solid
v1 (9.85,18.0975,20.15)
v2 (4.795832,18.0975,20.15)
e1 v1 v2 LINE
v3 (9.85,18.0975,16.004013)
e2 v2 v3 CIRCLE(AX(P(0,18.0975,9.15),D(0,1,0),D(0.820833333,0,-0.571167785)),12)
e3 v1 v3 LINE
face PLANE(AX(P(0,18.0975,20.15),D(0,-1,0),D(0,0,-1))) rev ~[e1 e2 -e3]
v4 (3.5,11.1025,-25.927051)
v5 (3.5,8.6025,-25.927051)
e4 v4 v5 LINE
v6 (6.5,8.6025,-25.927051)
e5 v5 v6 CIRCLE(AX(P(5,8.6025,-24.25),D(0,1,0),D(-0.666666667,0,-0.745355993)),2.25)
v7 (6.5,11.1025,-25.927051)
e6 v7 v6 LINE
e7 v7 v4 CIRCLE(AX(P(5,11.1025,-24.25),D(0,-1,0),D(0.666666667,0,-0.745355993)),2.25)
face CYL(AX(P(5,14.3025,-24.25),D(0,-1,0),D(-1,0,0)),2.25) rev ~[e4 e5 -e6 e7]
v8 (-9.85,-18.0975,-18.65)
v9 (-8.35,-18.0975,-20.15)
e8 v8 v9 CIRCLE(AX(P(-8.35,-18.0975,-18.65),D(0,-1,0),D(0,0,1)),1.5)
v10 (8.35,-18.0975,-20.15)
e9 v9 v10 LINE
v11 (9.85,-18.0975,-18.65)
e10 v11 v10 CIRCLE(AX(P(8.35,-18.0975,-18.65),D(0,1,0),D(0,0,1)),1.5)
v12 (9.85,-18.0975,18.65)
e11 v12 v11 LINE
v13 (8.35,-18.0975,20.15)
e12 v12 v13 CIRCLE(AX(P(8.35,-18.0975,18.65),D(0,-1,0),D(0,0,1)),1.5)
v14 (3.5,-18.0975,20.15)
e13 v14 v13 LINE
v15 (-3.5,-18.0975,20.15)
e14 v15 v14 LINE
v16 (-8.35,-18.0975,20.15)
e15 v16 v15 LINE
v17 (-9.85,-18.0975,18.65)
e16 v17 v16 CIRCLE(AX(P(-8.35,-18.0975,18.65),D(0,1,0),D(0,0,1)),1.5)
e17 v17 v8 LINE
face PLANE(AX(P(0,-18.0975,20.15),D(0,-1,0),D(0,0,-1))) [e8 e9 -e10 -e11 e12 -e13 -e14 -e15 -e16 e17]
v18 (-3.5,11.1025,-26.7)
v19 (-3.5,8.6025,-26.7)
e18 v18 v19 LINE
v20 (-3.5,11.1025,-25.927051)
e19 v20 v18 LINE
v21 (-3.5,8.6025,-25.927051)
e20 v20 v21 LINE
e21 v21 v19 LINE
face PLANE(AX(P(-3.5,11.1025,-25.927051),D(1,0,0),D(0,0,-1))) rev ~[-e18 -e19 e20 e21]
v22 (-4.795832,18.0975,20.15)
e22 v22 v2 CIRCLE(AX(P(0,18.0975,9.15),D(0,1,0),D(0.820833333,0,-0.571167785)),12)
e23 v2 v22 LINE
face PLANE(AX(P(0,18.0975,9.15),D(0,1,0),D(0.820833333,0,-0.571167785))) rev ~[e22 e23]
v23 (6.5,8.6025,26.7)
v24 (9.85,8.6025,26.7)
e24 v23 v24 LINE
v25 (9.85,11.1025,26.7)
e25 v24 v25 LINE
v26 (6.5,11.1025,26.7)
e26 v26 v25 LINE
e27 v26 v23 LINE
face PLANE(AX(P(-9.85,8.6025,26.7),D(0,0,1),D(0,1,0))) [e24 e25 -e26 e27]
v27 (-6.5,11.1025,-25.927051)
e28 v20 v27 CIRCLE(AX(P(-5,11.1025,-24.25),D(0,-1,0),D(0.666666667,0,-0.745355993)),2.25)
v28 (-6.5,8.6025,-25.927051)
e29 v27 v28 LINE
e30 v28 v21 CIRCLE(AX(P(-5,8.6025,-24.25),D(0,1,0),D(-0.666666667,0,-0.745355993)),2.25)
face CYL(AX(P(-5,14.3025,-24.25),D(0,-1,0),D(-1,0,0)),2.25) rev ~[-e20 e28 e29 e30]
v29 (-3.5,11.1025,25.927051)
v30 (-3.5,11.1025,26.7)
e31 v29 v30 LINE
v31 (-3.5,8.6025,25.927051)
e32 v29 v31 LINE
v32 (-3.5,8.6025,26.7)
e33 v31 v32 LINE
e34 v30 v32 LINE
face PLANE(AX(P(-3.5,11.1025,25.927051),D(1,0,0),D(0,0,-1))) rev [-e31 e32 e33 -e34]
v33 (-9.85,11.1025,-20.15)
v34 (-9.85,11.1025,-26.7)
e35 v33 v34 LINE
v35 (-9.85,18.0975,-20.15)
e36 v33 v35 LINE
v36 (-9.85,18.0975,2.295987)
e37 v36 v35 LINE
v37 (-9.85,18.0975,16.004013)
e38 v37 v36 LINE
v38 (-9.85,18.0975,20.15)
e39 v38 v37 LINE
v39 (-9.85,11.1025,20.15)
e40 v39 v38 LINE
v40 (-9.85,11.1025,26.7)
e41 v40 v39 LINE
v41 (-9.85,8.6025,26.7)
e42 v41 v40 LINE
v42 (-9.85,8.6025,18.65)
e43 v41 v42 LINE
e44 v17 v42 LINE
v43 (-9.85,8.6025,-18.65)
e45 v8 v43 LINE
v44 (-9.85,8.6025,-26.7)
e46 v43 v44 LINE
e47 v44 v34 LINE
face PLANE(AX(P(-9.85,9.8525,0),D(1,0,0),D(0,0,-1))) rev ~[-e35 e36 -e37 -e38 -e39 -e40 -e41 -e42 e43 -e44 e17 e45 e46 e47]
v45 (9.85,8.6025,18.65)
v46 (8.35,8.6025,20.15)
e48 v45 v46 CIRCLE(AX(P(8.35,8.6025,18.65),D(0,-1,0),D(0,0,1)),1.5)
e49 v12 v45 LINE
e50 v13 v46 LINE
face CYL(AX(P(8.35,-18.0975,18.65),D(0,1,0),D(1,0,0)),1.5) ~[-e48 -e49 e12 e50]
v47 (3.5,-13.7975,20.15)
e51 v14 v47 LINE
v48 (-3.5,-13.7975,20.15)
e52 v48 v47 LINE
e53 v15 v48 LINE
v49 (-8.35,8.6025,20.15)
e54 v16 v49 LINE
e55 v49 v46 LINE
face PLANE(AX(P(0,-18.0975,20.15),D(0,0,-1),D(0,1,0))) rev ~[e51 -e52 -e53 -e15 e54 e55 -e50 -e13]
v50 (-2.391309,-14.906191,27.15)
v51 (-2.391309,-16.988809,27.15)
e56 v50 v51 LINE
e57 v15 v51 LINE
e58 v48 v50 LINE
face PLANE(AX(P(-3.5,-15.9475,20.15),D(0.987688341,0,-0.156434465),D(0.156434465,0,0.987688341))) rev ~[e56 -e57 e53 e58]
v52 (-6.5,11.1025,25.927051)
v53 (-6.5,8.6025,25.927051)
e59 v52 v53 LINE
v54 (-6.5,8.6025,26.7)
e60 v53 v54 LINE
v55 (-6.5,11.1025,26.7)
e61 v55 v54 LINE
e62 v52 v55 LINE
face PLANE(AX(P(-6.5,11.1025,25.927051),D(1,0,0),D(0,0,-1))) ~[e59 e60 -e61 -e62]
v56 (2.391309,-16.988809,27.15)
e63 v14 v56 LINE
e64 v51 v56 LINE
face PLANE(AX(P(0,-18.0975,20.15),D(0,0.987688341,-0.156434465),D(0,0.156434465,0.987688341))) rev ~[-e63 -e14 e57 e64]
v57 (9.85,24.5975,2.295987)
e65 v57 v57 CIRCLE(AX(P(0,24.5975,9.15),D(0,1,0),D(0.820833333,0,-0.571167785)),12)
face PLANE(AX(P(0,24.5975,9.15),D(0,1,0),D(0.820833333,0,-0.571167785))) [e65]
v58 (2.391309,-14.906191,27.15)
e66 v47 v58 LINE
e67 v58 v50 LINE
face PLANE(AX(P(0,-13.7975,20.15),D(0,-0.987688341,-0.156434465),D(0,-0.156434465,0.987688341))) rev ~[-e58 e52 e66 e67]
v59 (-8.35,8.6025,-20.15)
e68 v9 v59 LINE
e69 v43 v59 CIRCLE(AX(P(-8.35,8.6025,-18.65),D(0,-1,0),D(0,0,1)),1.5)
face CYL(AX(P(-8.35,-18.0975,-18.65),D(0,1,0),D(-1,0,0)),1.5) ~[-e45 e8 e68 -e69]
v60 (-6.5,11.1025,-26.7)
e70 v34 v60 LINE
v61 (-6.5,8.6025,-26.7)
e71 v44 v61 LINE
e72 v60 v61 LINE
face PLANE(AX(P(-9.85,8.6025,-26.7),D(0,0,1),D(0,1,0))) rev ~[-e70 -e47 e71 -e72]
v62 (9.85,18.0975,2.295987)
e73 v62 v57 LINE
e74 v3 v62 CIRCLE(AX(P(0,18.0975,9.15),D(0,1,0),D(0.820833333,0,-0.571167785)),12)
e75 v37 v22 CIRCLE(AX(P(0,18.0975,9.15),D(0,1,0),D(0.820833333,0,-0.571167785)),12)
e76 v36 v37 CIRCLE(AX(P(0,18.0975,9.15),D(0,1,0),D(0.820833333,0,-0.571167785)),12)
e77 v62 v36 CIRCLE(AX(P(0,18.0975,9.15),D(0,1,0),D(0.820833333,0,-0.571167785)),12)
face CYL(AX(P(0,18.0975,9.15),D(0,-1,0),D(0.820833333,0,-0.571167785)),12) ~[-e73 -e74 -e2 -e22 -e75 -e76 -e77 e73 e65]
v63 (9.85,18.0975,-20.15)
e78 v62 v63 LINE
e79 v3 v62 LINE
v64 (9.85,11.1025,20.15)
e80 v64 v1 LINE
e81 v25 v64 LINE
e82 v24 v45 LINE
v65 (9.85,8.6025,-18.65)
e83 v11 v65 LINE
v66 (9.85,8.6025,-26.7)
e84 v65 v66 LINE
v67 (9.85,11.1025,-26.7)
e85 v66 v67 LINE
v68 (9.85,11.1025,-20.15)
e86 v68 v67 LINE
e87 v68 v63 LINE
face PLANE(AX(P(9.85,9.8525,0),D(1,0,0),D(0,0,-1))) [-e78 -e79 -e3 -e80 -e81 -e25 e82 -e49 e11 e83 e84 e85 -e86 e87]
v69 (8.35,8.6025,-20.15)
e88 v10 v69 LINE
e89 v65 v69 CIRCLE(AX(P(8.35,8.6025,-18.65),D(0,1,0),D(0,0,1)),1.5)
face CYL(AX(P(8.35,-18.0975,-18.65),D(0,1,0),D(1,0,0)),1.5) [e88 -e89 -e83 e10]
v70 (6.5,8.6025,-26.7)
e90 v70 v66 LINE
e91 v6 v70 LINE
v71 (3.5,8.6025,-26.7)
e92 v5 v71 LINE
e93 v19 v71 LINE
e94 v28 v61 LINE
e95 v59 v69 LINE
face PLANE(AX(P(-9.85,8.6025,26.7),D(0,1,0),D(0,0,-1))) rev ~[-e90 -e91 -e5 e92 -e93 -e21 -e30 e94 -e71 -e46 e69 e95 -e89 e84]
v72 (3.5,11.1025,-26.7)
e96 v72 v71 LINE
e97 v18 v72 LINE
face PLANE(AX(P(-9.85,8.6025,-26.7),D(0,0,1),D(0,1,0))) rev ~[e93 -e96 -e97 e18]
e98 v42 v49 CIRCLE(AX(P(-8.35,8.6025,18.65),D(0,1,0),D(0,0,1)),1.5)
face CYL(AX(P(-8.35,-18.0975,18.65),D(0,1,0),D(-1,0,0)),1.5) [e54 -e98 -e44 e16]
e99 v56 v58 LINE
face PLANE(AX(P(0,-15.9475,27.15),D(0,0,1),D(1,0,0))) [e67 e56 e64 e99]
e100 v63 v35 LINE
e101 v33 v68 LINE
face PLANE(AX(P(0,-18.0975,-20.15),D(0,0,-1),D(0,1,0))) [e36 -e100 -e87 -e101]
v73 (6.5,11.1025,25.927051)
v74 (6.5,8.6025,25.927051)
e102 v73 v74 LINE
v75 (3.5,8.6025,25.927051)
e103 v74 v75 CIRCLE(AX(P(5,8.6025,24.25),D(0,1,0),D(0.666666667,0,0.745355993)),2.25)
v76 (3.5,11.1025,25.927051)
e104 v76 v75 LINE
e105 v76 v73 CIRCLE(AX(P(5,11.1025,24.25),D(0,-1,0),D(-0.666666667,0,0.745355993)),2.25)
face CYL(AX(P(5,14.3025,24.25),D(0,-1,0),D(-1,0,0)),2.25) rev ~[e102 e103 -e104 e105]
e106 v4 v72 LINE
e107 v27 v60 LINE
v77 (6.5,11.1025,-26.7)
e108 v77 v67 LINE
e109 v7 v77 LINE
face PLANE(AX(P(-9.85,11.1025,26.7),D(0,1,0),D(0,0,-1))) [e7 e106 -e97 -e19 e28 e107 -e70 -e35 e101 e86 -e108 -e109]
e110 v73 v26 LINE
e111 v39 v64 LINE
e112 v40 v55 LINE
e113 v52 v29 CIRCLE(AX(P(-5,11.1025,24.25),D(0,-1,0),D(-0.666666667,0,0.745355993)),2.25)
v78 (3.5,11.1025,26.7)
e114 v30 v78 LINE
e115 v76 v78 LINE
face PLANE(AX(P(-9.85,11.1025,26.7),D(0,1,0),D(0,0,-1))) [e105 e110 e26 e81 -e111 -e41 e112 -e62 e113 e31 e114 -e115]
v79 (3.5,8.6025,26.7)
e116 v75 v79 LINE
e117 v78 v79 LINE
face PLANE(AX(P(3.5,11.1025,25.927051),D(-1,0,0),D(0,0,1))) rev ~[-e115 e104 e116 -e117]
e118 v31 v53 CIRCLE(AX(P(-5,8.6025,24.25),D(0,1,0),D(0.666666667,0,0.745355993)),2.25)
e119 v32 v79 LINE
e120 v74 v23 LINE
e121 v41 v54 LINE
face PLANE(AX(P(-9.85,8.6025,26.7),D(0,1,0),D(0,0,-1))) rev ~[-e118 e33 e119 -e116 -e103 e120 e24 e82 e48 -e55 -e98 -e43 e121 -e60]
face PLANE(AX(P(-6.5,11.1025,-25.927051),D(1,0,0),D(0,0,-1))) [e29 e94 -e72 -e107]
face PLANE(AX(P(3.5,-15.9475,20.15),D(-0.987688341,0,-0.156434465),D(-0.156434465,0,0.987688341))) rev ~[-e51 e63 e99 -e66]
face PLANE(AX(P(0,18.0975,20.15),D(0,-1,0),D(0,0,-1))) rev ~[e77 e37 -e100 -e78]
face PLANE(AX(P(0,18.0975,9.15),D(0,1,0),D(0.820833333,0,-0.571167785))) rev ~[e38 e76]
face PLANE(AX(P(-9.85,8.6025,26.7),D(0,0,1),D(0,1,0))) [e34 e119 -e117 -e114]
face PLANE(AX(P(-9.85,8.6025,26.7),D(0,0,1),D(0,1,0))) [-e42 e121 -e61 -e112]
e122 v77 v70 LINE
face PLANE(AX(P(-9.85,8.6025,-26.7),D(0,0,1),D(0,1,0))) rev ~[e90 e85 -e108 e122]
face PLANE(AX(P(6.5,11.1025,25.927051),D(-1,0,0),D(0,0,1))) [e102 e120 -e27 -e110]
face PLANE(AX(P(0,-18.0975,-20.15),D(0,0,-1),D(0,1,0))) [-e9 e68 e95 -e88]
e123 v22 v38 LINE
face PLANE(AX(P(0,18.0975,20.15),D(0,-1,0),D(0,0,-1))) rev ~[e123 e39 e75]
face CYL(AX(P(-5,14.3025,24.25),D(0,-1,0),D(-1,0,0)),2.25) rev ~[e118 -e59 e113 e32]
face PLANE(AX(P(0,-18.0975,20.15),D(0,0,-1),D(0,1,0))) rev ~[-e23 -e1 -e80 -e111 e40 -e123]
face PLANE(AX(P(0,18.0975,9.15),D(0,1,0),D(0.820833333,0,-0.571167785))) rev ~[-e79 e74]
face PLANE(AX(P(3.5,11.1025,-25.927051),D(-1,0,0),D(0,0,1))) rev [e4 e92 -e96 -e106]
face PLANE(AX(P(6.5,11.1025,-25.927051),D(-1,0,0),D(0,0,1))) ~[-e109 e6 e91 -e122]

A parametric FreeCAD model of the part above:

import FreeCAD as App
import Part
import Sketcher
from FreeCAD import Vector


def edges_at(feature, points):
    """Names of the edges that pass closest to the given points."""
    edges = feature.Shape.Edges
    near = lambda p: min(range(len(edges)), key=lambda i: edges[i].distToShape(Part.Vertex(*p))[0])
    return sorted({f"Edge{near(p) + 1}" for p in points})

doc = App.newDocument("Part")
body = doc.addObject("PartDesign::Body", "Body")

# Sketch on YZ plane
sketch1 = doc.addObject("Sketcher::SketchObject", "Sketch")
body.addObject(sketch1)
sketch1.AttachmentSupport = (doc.YZ_Plane, [""])
sketch1.MapMode = "FlatFace"
sketch1.addGeometry(Part.LineSegment(Vector(18, 20, 0), Vector(-18, 20, 0)), False)
sketch1.addGeometry(Part.LineSegment(Vector(-18, 20, 0), Vector(-18, -20, 0)), False)
sketch1.addGeometry(Part.LineSegment(Vector(-18, -20, 0), Vector(18, -20, 0)), False)
sketch1.addGeometry(Part.LineSegment(Vector(18, -20, 0), Vector(18, 20, 0)), False)
sketch1.addConstraint(Sketcher.Constraint("Coincident", 0, 2, 1, 1))
sketch1.addConstraint(Sketcher.Constraint("Coincident", 1, 2, 2, 1))
sketch1.addConstraint(Sketcher.Constraint("Coincident", 2, 2, 3, 1))
sketch1.addConstraint(Sketcher.Constraint("Coincident", 3, 2, 0, 1))
sketch1.addConstraint(Sketcher.Constraint("Horizontal", 0))
sketch1.addConstraint(Sketcher.Constraint("Vertical", 1))
sketch1.addConstraint(Sketcher.Constraint("Horizontal", 2))
sketch1.addConstraint(Sketcher.Constraint("Vertical", 3))
sketch1.addConstraint(Sketcher.Constraint("Symmetric", 0, 2, 2, 2, -1, 1))
sketch1.addConstraint(Sketcher.Constraint("DistanceY", 1, 2, 1, 1, 40.3))
sketch1.addConstraint(Sketcher.Constraint("DistanceX", 0, 2, 0, 1, 36.195))
pad1 = doc.addObject("PartDesign::Pad", "Pad")
body.addObject(pad1)
pad1.Profile = sketch1
pad1.Length = 19.7
pad1.Midplane = True

# Sketch on YZ plane
sketch2 = doc.addObject("Sketcher::SketchObject", "Sketch001")
body.addObject(sketch2)
sketch2.AttachmentSupport = (doc.YZ_Plane, [""])
sketch2.MapMode = "FlatFace"
sketch2.AttachmentOffset = App.Placement(Vector(0, 0, -9.85), App.Rotation())
sketch2.addGeometry(Part.LineSegment(Vector(11.1, 26.7, 0), Vector(8.6, 26.7, 0)), False)
sketch2.addGeometry(Part.LineSegment(Vector(8.6, 26.7, 0), Vector(8.6, -26.7, 0)), False)
sketch2.addGeometry(Part.LineSegment(Vector(8.6, -26.7, 0), Vector(11.1, -26.7, 0)), False)
sketch2.addGeometry(Part.LineSegment(Vector(11.1, -26.7, 0), Vector(11.1, 26.7, 0)), False)
sketch2.addConstraint(Sketcher.Constraint("Coincident", 0, 2, 1, 1))
sketch2.addConstraint(Sketcher.Constraint("Coincident", 1, 2, 2, 1))
sketch2.addConstraint(Sketcher.Constraint("Coincident", 2, 2, 3, 1))
sketch2.addConstraint(Sketcher.Constraint("Coincident", 3, 2, 0, 1))
sketch2.addConstraint(Sketcher.Constraint("Horizontal", 0))
sketch2.addConstraint(Sketcher.Constraint("Vertical", 1))
sketch2.addConstraint(Sketcher.Constraint("Horizontal", 2))
sketch2.addConstraint(Sketcher.Constraint("Vertical", 3))
sketch2.addConstraint(Sketcher.Constraint("DistanceX", 0, 2, 0, 1, 2.5))
sketch2.addConstraint(Sketcher.Constraint("DistanceY", 1, 2, 1, 1, 53.4))
sketch2.addConstraint(Sketcher.Constraint("DistanceY", -1, 1, 0, 2, 26.7))
sketch2.addConstraint(Sketcher.Constraint("DistanceX", -1, 1, 0, 2, 8.6025))
pad2 = doc.addObject("PartDesign::Pad", "Pad001")
body.addObject(pad2)
pad2.Profile = sketch2
pad2.Length = 19.7

# Sketch on XZ plane
sketch3 = doc.addObject("Sketcher::SketchObject", "Sketch002")
body.addObject(sketch3)
sketch3.AttachmentSupport = (doc.XZ_Plane, [""])
sketch3.MapMode = "FlatFace"
sketch3.AttachmentOffset = App.Placement(Vector(0, 0, -18.0975), App.Rotation())
sketch3.addGeometry(Part.Circle(Vector(0, 9, 0), Vector(0, 0, 1), 12), False)
sketch3.addConstraint(Sketcher.Constraint("PointOnObject", 0, 3, -2))
sketch3.addConstraint(Sketcher.Constraint("Diameter", 0, 24.0))
sketch3.addConstraint(Sketcher.Constraint("DistanceY", -1, 1, 0, 3, 9.15))
pad3 = doc.addObject("PartDesign::Pad", "Pad002")
body.addObject(pad3)
pad3.Profile = sketch3
pad3.Length = 6.5
pad3.Reversed = True

# Sketch on XY plane
sketch4 = doc.addObject("Sketcher::SketchObject", "Sketch003")
body.addObject(sketch4)
sketch4.AttachmentSupport = (doc.XY_Plane, [""])
sketch4.MapMode = "FlatFace"
sketch4.AttachmentOffset = App.Placement(Vector(0, 0, 20.15), App.Rotation())
sketch4.addGeometry(Part.LineSegment(Vector(-3.5, -13.8, 0), Vector(-3.5, -18.1, 0)), False)
sketch4.addGeometry(Part.LineSegment(Vector(-3.5, -18.1, 0), Vector(3.5, -18.1, 0)), False)
sketch4.addGeometry(Part.LineSegment(Vector(3.5, -18.1, 0), Vector(3.5, -13.8, 0)), False)
sketch4.addGeometry(Part.LineSegment(Vector(3.5, -13.8, 0), Vector(-3.5, -13.8, 0)), False)
sketch4.addConstraint(Sketcher.Constraint("Coincident", 0, 2, 1, 1))
sketch4.addConstraint(Sketcher.Constraint("Coincident", 1, 2, 2, 1))
sketch4.addConstraint(Sketcher.Constraint("Coincident", 2, 2, 3, 1))
sketch4.addConstraint(Sketcher.Constraint("Coincident", 3, 2, 0, 1))
sketch4.addConstraint(Sketcher.Constraint("Vertical", 0))
sketch4.addConstraint(Sketcher.Constraint("Horizontal", 1))
sketch4.addConstraint(Sketcher.Constraint("Vertical", 2))
sketch4.addConstraint(Sketcher.Constraint("Horizontal", 3))
sketch4.addConstraint(Sketcher.Constraint("DistanceX", 1, 1, 1, 2, 7.0))
sketch4.addConstraint(Sketcher.Constraint("DistanceY", 0, 2, 0, 1, 4.3))
sketch4.addConstraint(Sketcher.Constraint("DistanceX", 0, 2, -1, 1, 3.5))
sketch4.addConstraint(Sketcher.Constraint("DistanceY", 0, 2, -1, 1, 18.0975))
pad4 = doc.addObject("PartDesign::Pad", "Pad003")
body.addObject(pad4)
pad4.Profile = sketch4
pad4.Length = 7
pad4.TaperAngle = -9

# Sketch on XZ plane
sketch5 = doc.addObject("Sketcher::SketchObject", "Sketch004")
body.addObject(sketch5)
sketch5.AttachmentSupport = (doc.XZ_Plane, [""])
sketch5.MapMode = "FlatFace"
sketch5.AttachmentOffset = App.Placement(Vector(0, 0, -11.1025), App.Rotation())
sketch5.addGeometry(Part.Circle(Vector(5, -24.2, 0), Vector(0, 0, 1), 2.2), False)
sketch5.addGeometry(Part.Circle(Vector(-5, -24.2, 0), Vector(0, 0, 1), 2.2), False)
sketch5.addGeometry(Part.Circle(Vector(5, 24.2, 0), Vector(0, 0, 1), 2.2), False)
sketch5.addGeometry(Part.Circle(Vector(-5, 24.2, 0), Vector(0, 0, 1), 2.2), False)
sketch5.addConstraint(Sketcher.Constraint("Equal", 0, 1))
sketch5.addConstraint(Sketcher.Constraint("Equal", 1, 2))
sketch5.addConstraint(Sketcher.Constraint("Equal", 2, 3))
sketch5.addConstraint(Sketcher.Constraint("Symmetric", 1, 3, 2, 3, -1, 1))
sketch5.addConstraint(Sketcher.Constraint("Symmetric", 0, 3, 3, 3, -1, 1))
sketch5.addConstraint(Sketcher.Constraint("Symmetric", 0, 3, 1, 3, -2))
sketch5.addConstraint(Sketcher.Constraint("Diameter", 0, 4.5))
sketch5.addConstraint(Sketcher.Constraint("DistanceX", -1, 1, 0, 3, 5.0))
sketch5.addConstraint(Sketcher.Constraint("DistanceY", 0, 3, 2, 3, 48.5))
doc.recompute()
hole = doc.addObject("PartDesign::Hole", "Hole")
body.addObject(hole)
hole.Profile = sketch5
hole.ThreadType = "None"
hole.Diameter = 4.5
hole.DepthType = "Dimension"
hole.Depth = 3.2
hole.DrillPoint = "Angled"
hole.DrillPointAngle = 118
hole.Reversed = True

# Sketch on XZ plane
sketch6 = doc.addObject("Sketcher::SketchObject", "Sketch005")
body.addObject(sketch6)
sketch6.AttachmentSupport = (doc.XZ_Plane, [""])
sketch6.MapMode = "FlatFace"
sketch6.AttachmentOffset = App.Placement(Vector(0, 0, -11.1025), App.Rotation())
sketch6.addGeometry(Part.LineSegment(Vector(-6.5, -26.7, 0), Vector(-6.5, -25.9, 0)), False)
sketch6.addGeometry(Part.LineSegment(Vector(-6.5, -25.9, 0), Vector(-3.5, -25.9, 0)), False)
sketch6.addGeometry(Part.LineSegment(Vector(-3.5, -25.9, 0), Vector(-3.5, -26.7, 0)), False)
sketch6.addGeometry(Part.LineSegment(Vector(-3.5, -26.7, 0), Vector(-6.5, -26.7, 0)), False)
sketch6.addConstraint(Sketcher.Constraint("Coincident", 0, 2, 1, 1))
sketch6.addConstraint(Sketcher.Constraint("Coincident", 1, 2, 2, 1))
sketch6.addConstraint(Sketcher.Constraint("Coincident", 2, 2, 3, 1))
sketch6.addConstraint(Sketcher.Constraint("Coincident", 3, 2, 0, 1))
sketch6.addConstraint(Sketcher.Constraint("Vertical", 0))
sketch6.addConstraint(Sketcher.Constraint("Horizontal", 1))
sketch6.addConstraint(Sketcher.Constraint("Vertical", 2))
sketch6.addConstraint(Sketcher.Constraint("Horizontal", 3))
sketch6.addConstraint(Sketcher.Constraint("DistanceX", 1, 1, 1, 2, 3.0))
sketch6.addConstraint(Sketcher.Constraint("DistanceX", 0, 2, -1, 1, 6.5))
sketch6.addConstraint(Sketcher.Constraint("DistanceY", 2, 2, -1, 1, 26.7))
sketch6.addConstraint(Sketcher.Constraint("DistanceY", 0, 1, 0, 2, 0.772949))
pocket1 = doc.addObject("PartDesign::Pocket", "Pocket")
body.addObject(pocket1)
pocket1.Profile = sketch6
pocket1.Type = "ThroughAll"
pocket1.Reversed = True
doc.recompute()

mirrored = doc.addObject("PartDesign::Mirrored", "Mirrored")
body.addObject(mirrored)
mirrored.Originals = [pocket1]
mirrored.MirrorPlane = (doc.YZ_Plane, [""])
body.Tip = mirrored
doc.recompute()

mirrored2 = doc.addObject("PartDesign::Mirrored", "Mirrored001")
body.addObject(mirrored2)
mirrored2.Originals = [pocket1]
mirrored2.MirrorPlane = (doc.XY_Plane, [""])
body.Tip = mirrored2

# Sketch on XZ plane
sketch7 = doc.addObject("Sketcher::SketchObject", "Sketch006")
body.addObject(sketch7)
sketch7.AttachmentSupport = (doc.XZ_Plane, [""])
sketch7.MapMode = "FlatFace"
sketch7.AttachmentOffset = App.Placement(Vector(0, 0, -11.1025), App.Rotation())
sketch7.addGeometry(Part.LineSegment(Vector(6.5, 26.7, 0), Vector(6.5, 25.9, 0)), False)
sketch7.addGeometry(Part.LineSegment(Vector(6.5, 25.9, 0), Vector(3.5, 25.9, 0)), False)
sketch7.addGeometry(Part.LineSegment(Vector(3.5, 25.9, 0), Vector(3.5, 26.7, 0)), False)
sketch7.addGeometry(Part.LineSegment(Vector(3.5, 26.7, 0), Vector(6.5, 26.7, 0)), False)
sketch7.addConstraint(Sketcher.Constraint("Coincident", 0, 2, 1, 1))
sketch7.addConstraint(Sketcher.Constraint("Coincident", 1, 2, 2, 1))
sketch7.addConstraint(Sketcher.Constraint("Coincident", 2, 2, 3, 1))
sketch7.addConstraint(Sketcher.Constraint("Coincident", 3, 2, 0, 1))
sketch7.addConstraint(Sketcher.Constraint("Vertical", 0))
sketch7.addConstraint(Sketcher.Constraint("Horizontal", 1))
sketch7.addConstraint(Sketcher.Constraint("Vertical", 2))
sketch7.addConstraint(Sketcher.Constraint("Horizontal", 3))
sketch7.addConstraint(Sketcher.Constraint("DistanceX", 1, 2, 1, 1, 3.0))
sketch7.addConstraint(Sketcher.Constraint("DistanceX", -1, 1, 0, 2, 6.5))
sketch7.addConstraint(Sketcher.Constraint("DistanceY", -1, 1, 2, 2, 26.7))
sketch7.addConstraint(Sketcher.Constraint("DistanceY", 0, 2, 0, 1, 0.772949))
pocket2 = doc.addObject("PartDesign::Pocket", "Pocket001")
body.addObject(pocket2)
pocket2.Profile = sketch7
pocket2.Type = "ThroughAll"
pocket2.Reversed = True
doc.recompute()

fillet = doc.addObject("PartDesign::Fillet", "Fillet")
body.addObject(fillet)
fillet.Base = (pocket2, edges_at(pocket2, [
    (-9.85, -4.747, 20.15),
    (9.85, -4.747, 20.15),
    (9.85, -4.747, -20.15),
    (-9.85, -4.747, -20.15),
]))
fillet.Radius = 1.5

doc.recompute()
